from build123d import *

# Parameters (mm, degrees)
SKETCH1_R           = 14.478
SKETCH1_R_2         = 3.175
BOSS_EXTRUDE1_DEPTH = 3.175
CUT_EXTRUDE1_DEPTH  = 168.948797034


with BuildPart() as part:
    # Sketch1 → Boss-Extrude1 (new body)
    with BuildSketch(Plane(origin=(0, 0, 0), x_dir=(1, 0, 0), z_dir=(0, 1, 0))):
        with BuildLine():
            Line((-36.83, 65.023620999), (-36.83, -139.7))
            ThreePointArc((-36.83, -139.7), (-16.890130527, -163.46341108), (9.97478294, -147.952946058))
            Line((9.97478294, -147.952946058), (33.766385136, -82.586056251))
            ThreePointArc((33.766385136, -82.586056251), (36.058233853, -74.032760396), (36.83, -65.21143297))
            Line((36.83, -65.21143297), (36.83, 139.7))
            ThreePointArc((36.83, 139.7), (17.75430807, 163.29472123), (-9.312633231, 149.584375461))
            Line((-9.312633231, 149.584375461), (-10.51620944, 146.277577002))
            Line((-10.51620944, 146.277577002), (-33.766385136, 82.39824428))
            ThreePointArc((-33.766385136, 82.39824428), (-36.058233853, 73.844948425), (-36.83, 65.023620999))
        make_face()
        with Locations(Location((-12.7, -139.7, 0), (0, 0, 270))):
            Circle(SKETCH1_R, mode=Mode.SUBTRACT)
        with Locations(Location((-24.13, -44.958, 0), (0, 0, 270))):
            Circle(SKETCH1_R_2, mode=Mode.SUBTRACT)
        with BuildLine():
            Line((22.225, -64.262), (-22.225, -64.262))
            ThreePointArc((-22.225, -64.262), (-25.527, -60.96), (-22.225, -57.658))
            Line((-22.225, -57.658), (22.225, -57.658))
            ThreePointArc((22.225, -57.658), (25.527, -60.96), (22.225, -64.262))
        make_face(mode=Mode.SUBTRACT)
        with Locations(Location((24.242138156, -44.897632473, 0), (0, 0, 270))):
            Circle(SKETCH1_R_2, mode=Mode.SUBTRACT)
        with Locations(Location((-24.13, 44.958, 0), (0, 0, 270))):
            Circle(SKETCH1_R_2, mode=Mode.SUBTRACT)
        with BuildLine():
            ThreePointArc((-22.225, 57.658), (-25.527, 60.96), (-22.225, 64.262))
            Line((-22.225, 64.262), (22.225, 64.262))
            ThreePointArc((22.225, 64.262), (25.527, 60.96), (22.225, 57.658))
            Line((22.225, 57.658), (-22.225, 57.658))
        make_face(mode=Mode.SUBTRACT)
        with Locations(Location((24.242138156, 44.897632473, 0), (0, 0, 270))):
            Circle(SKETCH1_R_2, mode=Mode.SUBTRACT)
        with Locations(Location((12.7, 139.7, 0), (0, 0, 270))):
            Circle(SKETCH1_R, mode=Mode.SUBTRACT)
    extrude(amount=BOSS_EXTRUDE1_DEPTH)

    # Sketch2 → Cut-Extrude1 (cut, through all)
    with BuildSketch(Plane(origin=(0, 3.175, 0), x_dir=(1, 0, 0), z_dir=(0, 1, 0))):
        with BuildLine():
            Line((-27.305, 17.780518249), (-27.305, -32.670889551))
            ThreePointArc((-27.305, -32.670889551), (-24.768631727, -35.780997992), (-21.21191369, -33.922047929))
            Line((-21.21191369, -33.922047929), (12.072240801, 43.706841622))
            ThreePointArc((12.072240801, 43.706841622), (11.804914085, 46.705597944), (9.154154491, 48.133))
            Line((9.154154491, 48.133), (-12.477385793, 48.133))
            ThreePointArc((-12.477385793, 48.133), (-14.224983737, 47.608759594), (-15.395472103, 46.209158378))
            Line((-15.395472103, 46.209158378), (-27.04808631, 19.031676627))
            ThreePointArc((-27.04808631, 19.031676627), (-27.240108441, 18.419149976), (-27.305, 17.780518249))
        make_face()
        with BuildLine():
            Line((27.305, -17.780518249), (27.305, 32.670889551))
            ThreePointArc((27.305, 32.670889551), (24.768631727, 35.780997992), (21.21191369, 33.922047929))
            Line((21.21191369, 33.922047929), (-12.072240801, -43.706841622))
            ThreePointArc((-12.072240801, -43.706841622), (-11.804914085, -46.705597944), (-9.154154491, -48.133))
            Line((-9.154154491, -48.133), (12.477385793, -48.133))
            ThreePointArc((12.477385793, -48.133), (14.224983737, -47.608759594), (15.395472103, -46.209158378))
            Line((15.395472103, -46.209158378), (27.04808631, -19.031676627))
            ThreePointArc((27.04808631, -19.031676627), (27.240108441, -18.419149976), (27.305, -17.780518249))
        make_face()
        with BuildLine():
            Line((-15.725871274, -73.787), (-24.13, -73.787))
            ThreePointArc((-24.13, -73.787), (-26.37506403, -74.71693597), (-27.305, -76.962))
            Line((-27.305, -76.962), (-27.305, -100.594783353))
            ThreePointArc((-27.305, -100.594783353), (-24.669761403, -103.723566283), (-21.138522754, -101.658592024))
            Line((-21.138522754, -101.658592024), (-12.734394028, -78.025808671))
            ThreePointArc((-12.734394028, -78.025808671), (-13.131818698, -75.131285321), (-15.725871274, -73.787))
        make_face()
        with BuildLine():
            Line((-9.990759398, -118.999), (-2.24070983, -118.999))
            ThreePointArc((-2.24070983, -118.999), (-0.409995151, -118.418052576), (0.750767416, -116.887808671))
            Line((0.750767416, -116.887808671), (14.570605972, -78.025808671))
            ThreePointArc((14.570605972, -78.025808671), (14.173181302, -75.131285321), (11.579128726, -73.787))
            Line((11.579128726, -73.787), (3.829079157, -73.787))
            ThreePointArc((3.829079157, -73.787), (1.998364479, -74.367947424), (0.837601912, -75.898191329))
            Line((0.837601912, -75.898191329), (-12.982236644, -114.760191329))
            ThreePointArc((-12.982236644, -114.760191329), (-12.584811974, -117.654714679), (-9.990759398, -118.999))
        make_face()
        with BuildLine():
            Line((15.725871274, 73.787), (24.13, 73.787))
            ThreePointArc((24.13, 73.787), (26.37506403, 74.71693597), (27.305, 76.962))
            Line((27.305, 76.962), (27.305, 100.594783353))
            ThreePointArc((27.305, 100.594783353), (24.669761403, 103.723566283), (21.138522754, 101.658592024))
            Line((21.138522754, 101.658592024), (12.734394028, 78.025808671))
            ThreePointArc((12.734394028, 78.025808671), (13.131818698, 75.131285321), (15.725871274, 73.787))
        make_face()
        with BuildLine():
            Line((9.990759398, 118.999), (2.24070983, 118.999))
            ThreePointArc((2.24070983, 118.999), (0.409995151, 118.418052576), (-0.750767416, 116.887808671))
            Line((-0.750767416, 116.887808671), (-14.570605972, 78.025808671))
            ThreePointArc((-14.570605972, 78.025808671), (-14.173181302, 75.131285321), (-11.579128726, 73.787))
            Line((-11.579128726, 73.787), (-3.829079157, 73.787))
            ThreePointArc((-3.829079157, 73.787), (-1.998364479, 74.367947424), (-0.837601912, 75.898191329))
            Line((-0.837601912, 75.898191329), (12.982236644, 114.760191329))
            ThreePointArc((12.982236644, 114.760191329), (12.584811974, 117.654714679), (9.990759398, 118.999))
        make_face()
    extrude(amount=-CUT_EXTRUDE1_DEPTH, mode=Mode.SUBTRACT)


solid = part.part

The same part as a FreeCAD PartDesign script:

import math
import FreeCAD as App
import Part
import Sketcher
Q = App.Units.Quantity

doc = App.newDocument("Part")
params = doc.addObject("Spreadsheet::Sheet", "Params")
for row, (alias, value) in enumerate([
    ("sketch1_radius", "2 in"),
    ("sketch1_diameter", "1.14 in"),
    ("sketch1_diameter2", "0.25 in"),
    ("sketch1_radius2", "0.95 in"),
    ("sketch1_radius3", "0.13 in"),
    ("pad1_length", "0.125 in"),
    ("sketch2_radius", "0.125 in"),
], start=1):
    params.set(f"A{row}", alias)
    params.set(f"B{row}", "=" + value)
    params.setAlias(f"B{row}", alias)

body = doc.addObject("PartDesign::Body", "Body")

# Sketch on XZ plane
sketch1 = body.newObject("Sketcher::SketchObject", "Sketch")
sketch1.AttachmentSupport = (doc.getObject("XZ_Plane"), [""])
sketch1.MapMode = "FlatFace"
sketch1.addGeometry([
    Part.LineSegment(App.Vector(-36.8, -65, 0), App.Vector(-36.8, 139.7, 0)),  # 0
    Part.ArcOfCircle(Part.Circle(App.Vector(-12.7, 139.7, 0), App.Vector(0, 0, 1), 24.1), math.radians(20), math.radians(180)),  # 1
    Part.LineSegment(App.Vector(10, 148, 0), App.Vector(33.8, 82.6, 0)),  # 2
    Part.ArcOfCircle(Part.Circle(App.Vector(-14, 65.2, 0), App.Vector(0, 0, 1), 50.8), math.radians(0), math.radians(20)),  # 3
    Part.LineSegment(App.Vector(36.8, 65.2, 0), App.Vector(36.8, -139.7, 0)),  # 4
    Part.ArcOfCircle(Part.Circle(App.Vector(12.7, -139.7, 0), App.Vector(0, 0, 1), 24.1), math.radians(-156), math.radians(0)),  # 5
    Part.LineSegment(App.Vector(-9.3, -149.6, 0), App.Vector(-10.5, -146.3, 0)),  # 6
    Part.LineSegment(App.Vector(-10.5, -146.3, 0), App.Vector(-33.8, -82.4, 0)),  # 7
    Part.ArcOfCircle(Part.Circle(App.Vector(14, -65, 0), App.Vector(0, 0, 1), 50.8), math.radians(180), math.radians(200)),  # 8
    Part.Circle(App.Vector(-12.7, 139.7, 0), App.Vector(0, 0, 1), 14.5),  # 9
    Part.Circle(App.Vector(-24.1, 45, 0), App.Vector(0, 0, 1), 3.2),  # 10
    Part.ArcOfCircle(Part.Circle(App.Vector(22.2, 61, 0), App.Vector(0, 0, 1), 3.3), math.radians(-90), math.radians(90)),  # 11
    Part.LineSegment(App.Vector(22.2, 64.3, 0), App.Vector(-22.2, 64.3, 0)),  # 12
    Part.ArcOfCircle(Part.Circle(App.Vector(-22.2, 61, 0), App.Vector(0, 0, 1), 3.3), math.radians(90), math.radians(270)),  # 13
    Part.LineSegment(App.Vector(-22.2, 57.7, 0), App.Vector(22.2, 57.7, 0)),  # 14
    Part.Circle(App.Vector(24.2, 44.9, 0), App.Vector(0, 0, 1), 3.2),  # 15
    Part.Circle(App.Vector(-24.1, -45, 0), App.Vector(0, 0, 1), 3.2),  # 16
    Part.LineSegment(App.Vector(22.2, -57.7, 0), App.Vector(-22.2, -57.7, 0)),  # 17
    Part.ArcOfCircle(Part.Circle(App.Vector(-22.2, -61, 0), App.Vector(0, 0, 1), 3.3), math.radians(90), math.radians(270)),  # 18
    Part.LineSegment(App.Vector(-22.2, -64.3, 0), App.Vector(22.2, -64.3, 0)),  # 19
    Part.ArcOfCircle(Part.Circle(App.Vector(22.2, -61, 0), App.Vector(0, 0, 1), 3.3), math.radians(-90), math.radians(90)),  # 20
    Part.Circle(App.Vector(24.2, -44.9, 0), App.Vector(0, 0, 1), 3.2),  # 21
    Part.Circle(App.Vector(12.7, -139.7, 0), App.Vector(0, 0, 1), 14.5),  # 22
], False)
sketch1.addConstraint([
    Sketcher.Constraint("Tangent", 0, 2, 1, 2),
    Sketcher.Constraint("Tangent", 1, 1, 2, 1),
    Sketcher.Constraint("Tangent", 2, 2, 3, 2),
    Sketcher.Constraint("Tangent", 3, 1, 4, 1),
    Sketcher.Constraint("Tangent", 4, 2, 5, 2),
    Sketcher.Constraint("Coincident", 5, 1, 6, 1),
    Sketcher.Constraint("Coincident", 6, 2, 7, 1),
    Sketcher.Constraint("Tangent", 7, 2, 8, 2),
    Sketcher.Constraint("Tangent", 8, 1, 0, 1),
    Sketcher.Constraint("Tangent", 11, 2, 12, 1),
    Sketcher.Constraint("Tangent", 12, 2, 13, 1),
    Sketcher.Constraint("Tangent", 13, 2, 14, 1),
    Sketcher.Constraint("Tangent", 14, 2, 11, 1),
    Sketcher.Constraint("Tangent", 17, 2, 18, 1),
    Sketcher.Constraint("Tangent", 18, 2, 19, 1),
    Sketcher.Constraint("Tangent", 19, 2, 20, 1),
    Sketcher.Constraint("Tangent", 20, 2, 17, 1),
    Sketcher.Constraint("Vertical", 0),
    Sketcher.Constraint("Vertical", 4),
    Sketcher.Constraint("Horizontal", 12),
    Sketcher.Constraint("Horizontal", 14),
    Sketcher.Constraint("Horizontal", 17),
    Sketcher.Constraint("Horizontal", 19),
    Sketcher.Constraint("Coincident", 9, 3, 1, 3),
    Sketcher.Constraint("Coincident", 22, 3, 5, 3),
    Sketcher.Constraint("Equal", 1, 5),
    Sketcher.Constraint("Equal", 3, 8),
    Sketcher.Constraint("Equal", 10, 15),
    Sketcher.Constraint("Equal", 15, 16),
    Sketcher.Constraint("Equal", 13, 18),
    Sketcher.Constraint("Equal", 16, 21),
    Sketcher.Constraint("Equal", 9, 22),
    Sketcher.Constraint("Symmetric", 1, 3, 5, 3, -1, 1),
    Sketcher.Constraint("Symmetric", 11, 3, 18, 3, -1, 1),
    Sketcher.Constraint("Symmetric", 10, 3, 16, 3, -1),
    Sketcher.Constraint("Symmetric", 15, 3, 21, 3, -1),
    Sketcher.Constraint("Parallel", 2, 6),
    Sketcher.Constraint("Parallel", 6, 7),
    Sketcher.Constraint("Vertical", 13, 3, 18, 3),
    Sketcher.Constraint("Vertical", 11, 3, 20, 3),
    Sketcher.Constraint("Radius", 3, Q("2 in")),
    Sketcher.Constraint("Diameter", 9, Q("1.14 in")),
    Sketcher.Constraint("Diameter", 10, Q("0.25 in")),
    Sketcher.Constraint("Radius", 1, Q("0.95 in")),
    Sketcher.Constraint("Radius", 11, Q("0.13 in")),
    Sketcher.Constraint("Angle", 2, Q("-70 deg")),
    Sketcher.Constraint("DistanceX", 1, 3, 5, 3, Q("1 in")),
    Sketcher.Constraint("DistanceY", 5, 3, 1, 3, Q("11 in")),
    Sketcher.Constraint("DistanceX", 12, 2, 12, 1, Q("1.75 in")),
    Sketcher.Constraint("DistanceY", -1, 1, 11, 3, Q("2.4 in")),
    Sketcher.Constraint("DistanceX", 10, 3, 3, 3, Q("0.4 in")),
    Sketcher.Constraint("DistanceY", 10, 3, 13, 2, Q("0.5 in")),
    Sketcher.Constraint("DistanceY", 0, 1, 0, 2, Q("204.723621 mm")),
    Sketcher.Constraint("DistanceY", 15, 3, 3, 3, Q("20.3138 mm")),
    Sketcher.Constraint("DistanceY", 5, 1, 6, 2, Q("3.306798 mm")),
    Sketcher.Constraint("DistanceX", -1, 1, 15, 3, Q("24.242138 mm")),
])
sketch1.setExpression("Constraints[40]", "Params.sketch1_radius")
sketch1.setExpression("Constraints[41]", "Params.sketch1_diameter")
sketch1.setExpression("Constraints[42]", "Params.sketch1_diameter2")
sketch1.setExpression("Constraints[43]", "Params.sketch1_radius2")
sketch1.setExpression("Constraints[44]", "Params.sketch1_radius3")
pad1 = body.newObject("PartDesign::Pad", "Pad")
pad1.Profile = sketch1
pad1.setExpression("Length", "Params.pad1_length")
pad1.Reversed = True

# Sketch on XZ plane
sketch2 = body.newObject("Sketcher::SketchObject", "Sketch001")
sketch2.AttachmentSupport = (doc.getObject("XZ_Plane"), [""])
sketch2.MapMode = "FlatFace"
sketch2.AttachmentOffset = App.Placement(App.Vector(0, 0, -0.125 * 25.4), App.Rotation())
sketch2.addGeometry([
    Part.LineSegment(App.Vector(-27.3, -17.8, 0), App.Vector(-27.3, 32.7, 0)),  # 0
    Part.ArcOfCircle(Part.Circle(App.Vector(-24.1, 32.7, 0), App.Vector(0, 0, 1), 3.2), math.radians(23), math.radians(180)),  # 1
    Part.LineSegment(App.Vector(-21.2, 33.9, 0), App.Vector(12.1, -43.7, 0)),  # 2
    Part.ArcOfCircle(Part.Circle(App.Vector(9.2, -45, 0), App.Vector(0, 0, 1), 3.2), math.radians(-90), math.radians(23)),  # 3
    Part.LineSegment(App.Vector(9.2, -48.1, 0), App.Vector(-12.5, -48.1, 0)),  # 4
    Part.ArcOfCircle(Part.Circle(App.Vector(-12.5, -45, 0), App.Vector(0, 0, 1), 3.2), math.radians(-157), math.radians(-90)),  # 5
    Part.LineSegment(App.Vector(-15.4, -46.2, 0), App.Vector(-27, -19, 0)),  # 6
    Part.ArcOfCircle(Part.Circle(App.Vector(-24.1, -17.8, 0), App.Vector(0, 0, 1), 3.2), math.radians(-180), math.radians(-157)),  # 7
    Part.LineSegment(App.Vector(27.3, 17.8, 0), App.Vector(27.3, -32.7, 0)),  # 8
    Part.ArcOfCircle(Part.Circle(App.Vector(24.1, -32.7, 0), App.Vector(0, 0, 1), 3.2), math.radians(-157), math.radians(0)),  # 9
    Part.LineSegment(App.Vector(21.2, -33.9, 0), App.Vector(-12.1, 43.7, 0)),  # 10
    Part.ArcOfCircle(Part.Circle(App.Vector(-9.2, 45, 0), App.Vector(0, 0, 1), 3.2), math.radians(90), math.radians(203)),  # 11
    Part.LineSegment(App.Vector(-9.2, 48.1, 0), App.Vector(12.5, 48.1, 0)),  # 12
    Part.ArcOfCircle(Part.Circle(App.Vector(12.5, 45, 0), App.Vector(0, 0, 1), 3.2), math.radians(23), math.radians(90)),  # 13
    Part.LineSegment(App.Vector(15.4, 46.2, 0), App.Vector(27, 19, 0)),  # 14
    Part.ArcOfCircle(Part.Circle(App.Vector(24.1, 17.8, 0), App.Vector(0, 0, 1), 3.2), math.radians(0), math.radians(23)),  # 15
    Part.LineSegment(App.Vector(-15.7, 73.8, 0), App.Vector(-24.1, 73.8, 0)),  # 16
    Part.ArcOfCircle(Part.Circle(App.Vector(-24.1, 77, 0), App.Vector(0, 0, 1), 3.2), math.radians(-180), math.radians(-90)),  # 17
    Part.LineSegment(App.Vector(-27.3, 77, 0), App.Vector(-27.3, 100.6, 0)),  # 18
    Part.ArcOfCircle(Part.Circle(App.Vector(-24.1, 100.6, 0), App.Vector(0, 0, 1), 3.2), math.radians(20), math.radians(180)),  # 19
    Part.LineSegment(App.Vector(-21.1, 101.7, 0), App.Vector(-12.7, 78, 0)),  # 20
    Part.ArcOfCircle(Part.Circle(App.Vector(-15.7, 77, 0), App.Vector(0, 0, 1), 3.2), math.radians(-90), math.radians(20)),  # 21
    Part.LineSegment(App.Vector(-10, 119, 0), App.Vector(-2.2, 119, 0)),  # 22
    Part.ArcOfCircle(Part.Circle(App.Vector(-2.2, 115.8, 0), App.Vector(0, 0, 1), 3.2), math.radians(20), math.radians(90)),  # 23
    Part.LineSegment(App.Vector(0.8, 116.9, 0), App.Vector(14.6, 78, 0)),  # 24
    Part.ArcOfCircle(Part.Circle(App.Vector(11.6, 77, 0), App.Vector(0, 0, 1), 3.2), math.radians(-90), math.radians(20)),  # 25
    Part.LineSegment(App.Vector(11.6, 73.8, 0), App.Vector(3.8, 73.8, 0)),  # 26
    Part.ArcOfCircle(Part.Circle(App.Vector(3.8, 77, 0), App.Vector(0, 0, 1), 3.2), math.radians(-160), math.radians(-90)),  # 27
    Part.LineSegment(App.Vector(0.8, 75.9, 0), App.Vector(-13, 114.8, 0)),  # 28
    Part.ArcOfCircle(Part.Circle(App.Vector(-10, 115.8, 0), App.Vector(0, 0, 1), 3.2), math.radians(90), math.radians(200)),  # 29
    Part.LineSegment(App.Vector(15.7, -73.8, 0), App.Vector(24.1, -73.8, 0)),  # 30
    Part.ArcOfCircle(Part.Circle(App.Vector(24.1, -77, 0), App.Vector(0, 0, 1), 3.2), math.radians(0), math.radians(90)),  # 31
    Part.LineSegment(App.Vector(27.3, -77, 0), App.Vector(27.3, -100.6, 0)),  # 32
    Part.ArcOfCircle(Part.Circle(App.Vector(24.1, -100.6, 0), App.Vector(0, 0, 1), 3.2), math.radians(-160), math.radians(0)),  # 33
    Part.LineSegment(App.Vector(21.1, -101.7, 0), App.Vector(12.7, -78, 0)),  # 34
    Part.ArcOfCircle(Part.Circle(App.Vector(15.7, -77, 0), App.Vector(0, 0, 1), 3.2), math.radians(90), math.radians(200)),  # 35
    Part.LineSegment(App.Vector(10, -119, 0), App.Vector(2.2, -119, 0)),  # 36
    Part.ArcOfCircle(Part.Circle(App.Vector(2.2, -115.8, 0), App.Vector(0, 0, 1), 3.2), math.radians(-160), math.radians(-90)),  # 37
    Part.LineSegment(App.Vector(-0.8, -116.9, 0), App.Vector(-14.6, -78, 0)),  # 38
    Part.ArcOfCircle(Part.Circle(App.Vector(-11.6, -77, 0), App.Vector(0, 0, 1), 3.2), math.radians(90), math.radians(200)),  # 39
    Part.LineSegment(App.Vector(-11.6, -73.8, 0), App.Vector(-3.8, -73.8, 0)),  # 40
    Part.ArcOfCircle(Part.Circle(App.Vector(-3.8, -77, 0), App.Vector(0, 0, 1), 3.2), math.radians(20), math.radians(90)),  # 41
    Part.LineSegment(App.Vector(-0.8, -75.9, 0), App.Vector(13, -114.8, 0)),  # 42
    Part.ArcOfCircle(Part.Circle(App.Vector(10, -115.8, 0), App.Vector(0, 0, 1), 3.2), math.radians(-90), math.radians(20)),  # 43
], False)
sketch2.addConstraint([
    Sketcher.Constraint("Tangent", 0, 2, 1, 2),
    Sketcher.Constraint("Tangent", 1, 1, 2, 1),
    Sketcher.Constraint("Tangent", 2, 2, 3, 2),
    Sketcher.Constraint("Tangent", 3, 1, 4, 1),
    Sketcher.Constraint("Tangent", 4, 2, 5, 2),
    Sketcher.Constraint("Tangent", 5, 1, 6, 1),
    Sketcher.Constraint("Tangent", 6, 2, 7, 2),
    Sketcher.Constraint("Tangent", 7, 1, 0, 1),
    Sketcher.Constraint("Tangent", 8, 2, 9, 2),
    Sketcher.Constraint("Tangent", 9, 1, 10, 1),
    Sketcher.Constraint("Tangent", 10, 2, 11, 2),
    Sketcher.Constraint("Tangent", 11, 1, 12, 1),
    Sketcher.Constraint("Tangent", 12, 2, 13, 2),
    Sketcher.Constraint("Tangent", 13, 1, 14, 1),
    Sketcher.Constraint("Tangent", 14, 2, 15, 2),
    Sketcher.Constraint("Tangent", 15, 1, 8, 1),
    Sketcher.Constraint("Tangent", 16, 2, 17, 2),
    Sketcher.Constraint("Tangent", 17, 1, 18, 1),
    Sketcher.Constraint("Tangent", 18, 2, 19, 2),
    Sketcher.Constraint("Tangent", 19, 1, 20, 1),
    Sketcher.Constraint("Tangent", 20, 2, 21, 2),
    Sketcher.Constraint("Tangent", 21, 1, 16, 1),
    Sketcher.Constraint("Tangent", 22, 2, 23, 2),
    Sketcher.Constraint("Tangent", 23, 1, 24, 1),
    Sketcher.Constraint("Tangent", 24, 2, 25, 2),
    Sketcher.Constraint("Tangent", 25, 1, 26, 1),
    Sketcher.Constraint("Tangent", 26, 2, 27, 2),
    Sketcher.Constraint("Tangent", 27, 1, 28, 1),
    Sketcher.Constraint("Tangent", 28, 2, 29, 2),
    Sketcher.Constraint("Tangent", 29, 1, 22, 1),
    Sketcher.Constraint("Tangent", 30, 2, 31, 2),
    Sketcher.Constraint("Tangent", 31, 1, 32, 1),
    Sketcher.Constraint("Tangent", 32, 2, 33, 2),
    Sketcher.Constraint("Tangent", 33, 1, 34, 1),
    Sketcher.Constraint("Tangent", 34, 2, 35, 2),
    Sketcher.Constraint("Tangent", 35, 1, 30, 1),
    Sketcher.Constraint("Tangent", 36, 2, 37, 2),
    Sketcher.Constraint("Tangent", 37, 1, 38, 1),
    Sketcher.Constraint("Tangent", 38, 2, 39, 2),
    Sketcher.Constraint("Tangent", 39, 1, 40, 1),
    Sketcher.Constraint("Tangent", 40, 2, 41, 2),
    Sketcher.Constraint("Tangent", 41, 1, 42, 1),
    Sketcher.Constraint("Tangent", 42, 2, 43, 2),
    Sketcher.Constraint("Tangent", 43, 1, 36, 1),
    Sketcher.Constraint("Vertical", 0),
    Sketcher.Constraint("Horizontal", 4),
    Sketcher.Constraint("Vertical", 8),
    Sketcher.Constraint("Horizontal", 12),
    Sketcher.Constraint("Horizontal", 16),
    Sketcher.Constraint("Vertical", 18),
    Sketcher.Constraint("Horizontal", 22),
    Sketcher.Constraint("Horizontal", 26),
    Sketcher.Constraint("Horizontal", 30),
    Sketcher.Constraint("Vertical", 32),
    Sketcher.Constraint("Horizontal", 36),
    Sketcher.Constraint("Horizontal", 40),
    Sketcher.Constraint("Equal", 1, 3),
    Sketcher.Constraint("Equal", 3, 5),
    Sketcher.Constraint("Equal", 5, 7),
    Sketcher.Constraint("Equal", 7, 9),
    Sketcher.Constraint("Equal", 9, 11),
    Sketcher.Constraint("Equal", 11, 13),
    Sketcher.Constraint("Equal", 13, 15),
    Sketcher.Constraint("Equal", 15, 17),
    Sketcher.Constraint("Equal", 17, 19),
    Sketcher.Constraint("Equal", 19, 21),
    Sketcher.Constraint("Equal", 21, 23),
    Sketcher.Constraint("Equal", 23, 25),
    Sketcher.Constraint("Equal", 25, 27),
    Sketcher.Constraint("Equal", 27, 29),
    Sketcher.Constraint("Equal", 29, 31),
    Sketcher.Constraint("Equal", 31, 33),
    Sketcher.Constraint("Equal", 33, 35),
    Sketcher.Constraint("Equal", 35, 37),
    Sketcher.Constraint("Equal", 37, 39),
    Sketcher.Constraint("Equal", 39, 41),
    Sketcher.Constraint("Equal", 41, 43),
    Sketcher.Constraint("Symmetric", 1, 3, 9, 3, -1, 1),
    Sketcher.Constraint("Symmetric", 3, 3, 11, 3, -1, 1),
    Sketcher.Constraint("Symmetric", 17, 3, 31, 3, -1, 1),
    Sketcher.Constraint("Symmetric", 23, 3, 37, 3, -1, 1),
    Sketcher.Constraint("Symmetric", 25, 3, 39, 3, -1, 1),
    Sketcher.Constraint("Symmetric", 5, 1, 13, 1, -1, 1),
    Sketcher.Constraint("Symmetric", 19, 1, 33, 1, -1, 1),
    Sketcher.Constraint("Symmetric", 27, 1, 41, 1, -1, 1),
    Sketcher.Constraint("Parallel", 2, 6),
    Sketcher.Constraint("Parallel", 20, 24),
    Sketcher.Constraint("Parallel", 24, 28),
    Sketcher.Constraint("Horizontal", 21, 3, 25, 3),
    Sketcher.Constraint("Vertical", 7, 3, 17, 3),
    Sketcher.Constraint("Radius", 1, Q("0.125 in")),
    Sketcher.Constraint("DistanceX", 1, 3, -1, 1, Q("0.95 in")),
    Sketcher.Constraint("DistanceY", 3, 3, -1, 1, Q("1.77 in")),
    Sketcher.Constraint("DistanceY", -1, 1, 17, 3, Q("3.03 in")),
    Sketcher.Constraint("DistanceY", -1, 1, 23, 3, Q("4.56 in")),
    Sketcher.Constraint("DistanceX", 4, 2, 4, 1, Q("21.63154 mm")),
    Sketcher.Constraint("DistanceX", 16, 2, 16, 1, Q("8.404129 mm")),
    Sketcher.Constraint("DistanceX", 22, 1, 22, 2, Q("7.75005 mm")),
    Sketcher.Constraint("DistanceX", -1, 1, 27, 1, Q("0.837602 mm")),
    Sketcher.Constraint("Distance", 2, Q("84.46348 mm")),
    Sketcher.Constraint("Distance", 20, Q("25.08262 mm")),
    Sketcher.Constraint("DistanceY", 0, 1, 0, 2, Q("50.451408 mm")),
])
sketch2.setExpression("Constraints[90]", "Params.sketch2_radius")
pocket1 = body.newObject("PartDesign::Pocket", "Pocket")
pocket1.Profile = sketch2
pocket1.Type = "ThroughAll"
pocket1.Reversed = True

doc.recompute()
